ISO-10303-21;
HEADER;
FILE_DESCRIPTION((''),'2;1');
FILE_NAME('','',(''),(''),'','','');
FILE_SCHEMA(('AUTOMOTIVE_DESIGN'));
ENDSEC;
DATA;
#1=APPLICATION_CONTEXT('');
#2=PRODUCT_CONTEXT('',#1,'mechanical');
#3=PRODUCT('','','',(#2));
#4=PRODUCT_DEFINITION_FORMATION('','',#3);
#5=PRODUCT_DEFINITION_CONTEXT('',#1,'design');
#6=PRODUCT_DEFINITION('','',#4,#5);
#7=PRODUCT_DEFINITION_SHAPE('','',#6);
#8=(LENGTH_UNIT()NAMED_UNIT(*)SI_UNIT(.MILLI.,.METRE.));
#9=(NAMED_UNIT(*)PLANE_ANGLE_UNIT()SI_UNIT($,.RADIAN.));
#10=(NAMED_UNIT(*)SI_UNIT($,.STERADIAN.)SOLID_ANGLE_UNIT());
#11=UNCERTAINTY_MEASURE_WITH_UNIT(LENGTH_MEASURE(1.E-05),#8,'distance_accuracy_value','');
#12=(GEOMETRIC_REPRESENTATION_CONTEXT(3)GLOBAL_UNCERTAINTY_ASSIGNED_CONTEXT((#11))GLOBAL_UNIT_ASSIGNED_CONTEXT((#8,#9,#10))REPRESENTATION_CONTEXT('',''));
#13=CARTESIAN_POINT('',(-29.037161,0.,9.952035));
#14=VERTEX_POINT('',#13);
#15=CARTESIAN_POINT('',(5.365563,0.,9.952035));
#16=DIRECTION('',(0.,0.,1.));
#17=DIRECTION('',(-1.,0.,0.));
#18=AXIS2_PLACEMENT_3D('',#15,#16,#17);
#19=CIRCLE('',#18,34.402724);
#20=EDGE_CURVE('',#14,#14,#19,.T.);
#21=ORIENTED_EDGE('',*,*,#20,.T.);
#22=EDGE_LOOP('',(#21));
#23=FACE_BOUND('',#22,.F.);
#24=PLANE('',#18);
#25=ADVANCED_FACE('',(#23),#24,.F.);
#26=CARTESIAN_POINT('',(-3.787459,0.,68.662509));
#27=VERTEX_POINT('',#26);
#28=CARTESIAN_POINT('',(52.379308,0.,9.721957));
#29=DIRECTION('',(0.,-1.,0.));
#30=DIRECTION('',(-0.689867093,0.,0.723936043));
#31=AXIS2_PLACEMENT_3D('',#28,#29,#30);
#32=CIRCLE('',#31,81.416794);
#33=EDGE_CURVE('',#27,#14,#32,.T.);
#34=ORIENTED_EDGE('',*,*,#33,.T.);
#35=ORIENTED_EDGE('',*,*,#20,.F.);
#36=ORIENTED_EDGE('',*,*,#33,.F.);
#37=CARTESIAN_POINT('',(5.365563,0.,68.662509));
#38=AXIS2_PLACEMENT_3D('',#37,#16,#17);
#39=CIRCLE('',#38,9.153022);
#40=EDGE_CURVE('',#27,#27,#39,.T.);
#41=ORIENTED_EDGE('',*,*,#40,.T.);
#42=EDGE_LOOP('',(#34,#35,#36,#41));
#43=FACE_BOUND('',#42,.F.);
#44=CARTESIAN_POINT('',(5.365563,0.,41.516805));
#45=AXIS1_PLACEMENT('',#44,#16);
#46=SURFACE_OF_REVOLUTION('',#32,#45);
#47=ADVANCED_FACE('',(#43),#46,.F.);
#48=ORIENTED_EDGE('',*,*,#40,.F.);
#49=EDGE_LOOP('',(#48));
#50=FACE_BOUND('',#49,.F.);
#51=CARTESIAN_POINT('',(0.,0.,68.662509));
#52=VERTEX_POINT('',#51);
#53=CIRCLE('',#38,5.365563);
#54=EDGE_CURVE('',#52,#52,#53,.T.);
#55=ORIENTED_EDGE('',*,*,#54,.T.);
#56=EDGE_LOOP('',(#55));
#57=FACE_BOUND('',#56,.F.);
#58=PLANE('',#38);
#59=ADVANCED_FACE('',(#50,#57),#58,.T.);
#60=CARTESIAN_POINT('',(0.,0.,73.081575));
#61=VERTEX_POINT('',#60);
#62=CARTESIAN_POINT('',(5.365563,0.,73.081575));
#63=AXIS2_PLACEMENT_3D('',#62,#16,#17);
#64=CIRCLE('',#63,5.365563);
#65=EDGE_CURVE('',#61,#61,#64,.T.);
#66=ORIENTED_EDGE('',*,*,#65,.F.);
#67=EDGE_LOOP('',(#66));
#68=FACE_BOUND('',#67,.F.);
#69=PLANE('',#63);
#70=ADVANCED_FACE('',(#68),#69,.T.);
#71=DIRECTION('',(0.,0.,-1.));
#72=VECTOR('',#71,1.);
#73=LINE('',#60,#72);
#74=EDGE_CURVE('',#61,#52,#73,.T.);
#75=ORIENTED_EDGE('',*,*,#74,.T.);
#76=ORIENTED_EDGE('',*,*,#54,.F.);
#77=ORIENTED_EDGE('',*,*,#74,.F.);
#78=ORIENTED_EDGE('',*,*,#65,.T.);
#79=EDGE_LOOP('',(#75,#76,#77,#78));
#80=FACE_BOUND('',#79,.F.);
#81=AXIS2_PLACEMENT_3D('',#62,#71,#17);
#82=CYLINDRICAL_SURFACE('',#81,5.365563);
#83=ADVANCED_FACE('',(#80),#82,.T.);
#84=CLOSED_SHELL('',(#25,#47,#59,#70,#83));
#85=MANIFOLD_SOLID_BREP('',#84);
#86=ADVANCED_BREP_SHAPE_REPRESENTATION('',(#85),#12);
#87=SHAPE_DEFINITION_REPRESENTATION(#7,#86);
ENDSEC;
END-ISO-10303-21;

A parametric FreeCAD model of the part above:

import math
import FreeCAD as App
import Part
import Sketcher
from FreeCAD import Vector
Q = App.Units.Quantity

doc = App.newDocument("Part")
body = doc.addObject("PartDesign::Body", "Body")

# Sketch on XZ plane
sketch1 = doc.addObject("Sketcher::SketchObject", "Sketch")
body.addObject(sketch1)
sketch1.AttachmentSupport = (doc.XZ_Plane, [""])
sketch1.MapMode = "FlatFace"
sketch1.addGeometry([
    Part.LineSegment(Vector(0, 68.7, 0), Vector(-3.8, 68.7, 0)),  # 0
    Part.ArcOfCircle(Part.Circle(Vector(52.4, 9.7, 0), Vector(0, 0, 1), 81.4), math.radians(134), math.radians(180)),  # 1
    Part.LineSegment(Vector(-29, 10, 0), Vector(5.4, 10, 0)),  # 2
    Part.LineSegment(Vector(5.4, 10, 0), Vector(5.4, 73.1, 0)),  # 3
    Part.LineSegment(Vector(5.4, 73.1, 0), Vector(0, 73.1, 0)),  # 4
    Part.LineSegment(Vector(0, 73.1, 0), Vector(0, 68.7, 0)),  # 5
], False)
sketch1.addGeometry(Part.LineSegment(Vector(5.4, 9.7, 0), Vector(5.4, 73.1, 0)), True)  # axis
sketch1.addConstraint([
    Sketcher.Constraint("Coincident", 0, 2, 1, 1),
    Sketcher.Constraint("Coincident", 1, 2, 2, 1),
    Sketcher.Constraint("Coincident", 2, 2, 3, 1),
    Sketcher.Constraint("Coincident", 3, 2, 4, 1),
    Sketcher.Constraint("Coincident", 4, 2, 5, 1),
    Sketcher.Constraint("Coincident", 5, 2, 0, 1),
    Sketcher.Constraint("Horizontal", 0),
    Sketcher.Constraint("Horizontal", 2),
    Sketcher.Constraint("Vertical", 3),
    Sketcher.Constraint("Horizontal", 4),
    Sketcher.Constraint("Vertical", 5),
    Sketcher.Constraint("Vertical", 6),
    Sketcher.Constraint("Coincident", 6, 2, 3, 2),
    Sketcher.Constraint("PointOnObject", 4, 2, -2),
    Sketcher.Constraint("Horizontal", 1, 3, 6, 1),
    Sketcher.Constraint("Radius", 1, Q("81.416794 mm")),
    Sketcher.Constraint("DistanceX", 0, 2, 0, 1, Q("3.787459 mm")),
    Sketcher.Constraint("DistanceY", 3, 1, 3, 2, Q("63.12954 mm")),
    Sketcher.Constraint("DistanceX", 2, 1, 2, 2, Q("34.402724 mm")),
    Sketcher.Constraint("DistanceX", 4, 2, 4, 1, Q("5.365563 mm")),
    Sketcher.Constraint("DistanceY", 5, 2, 5, 1, Q("4.419066 mm")),
    Sketcher.Constraint("DistanceY", -1, 1, 0, 2, Q("68.662509 mm")),
])
revolution = doc.addObject("PartDesign::Revolution", "Revolution")
body.addObject(revolution)
revolution.Profile = sketch1
revolution.ReferenceAxis = (sketch1, ["Axis0"])
revolution.Angle = 360

doc.recompute()
